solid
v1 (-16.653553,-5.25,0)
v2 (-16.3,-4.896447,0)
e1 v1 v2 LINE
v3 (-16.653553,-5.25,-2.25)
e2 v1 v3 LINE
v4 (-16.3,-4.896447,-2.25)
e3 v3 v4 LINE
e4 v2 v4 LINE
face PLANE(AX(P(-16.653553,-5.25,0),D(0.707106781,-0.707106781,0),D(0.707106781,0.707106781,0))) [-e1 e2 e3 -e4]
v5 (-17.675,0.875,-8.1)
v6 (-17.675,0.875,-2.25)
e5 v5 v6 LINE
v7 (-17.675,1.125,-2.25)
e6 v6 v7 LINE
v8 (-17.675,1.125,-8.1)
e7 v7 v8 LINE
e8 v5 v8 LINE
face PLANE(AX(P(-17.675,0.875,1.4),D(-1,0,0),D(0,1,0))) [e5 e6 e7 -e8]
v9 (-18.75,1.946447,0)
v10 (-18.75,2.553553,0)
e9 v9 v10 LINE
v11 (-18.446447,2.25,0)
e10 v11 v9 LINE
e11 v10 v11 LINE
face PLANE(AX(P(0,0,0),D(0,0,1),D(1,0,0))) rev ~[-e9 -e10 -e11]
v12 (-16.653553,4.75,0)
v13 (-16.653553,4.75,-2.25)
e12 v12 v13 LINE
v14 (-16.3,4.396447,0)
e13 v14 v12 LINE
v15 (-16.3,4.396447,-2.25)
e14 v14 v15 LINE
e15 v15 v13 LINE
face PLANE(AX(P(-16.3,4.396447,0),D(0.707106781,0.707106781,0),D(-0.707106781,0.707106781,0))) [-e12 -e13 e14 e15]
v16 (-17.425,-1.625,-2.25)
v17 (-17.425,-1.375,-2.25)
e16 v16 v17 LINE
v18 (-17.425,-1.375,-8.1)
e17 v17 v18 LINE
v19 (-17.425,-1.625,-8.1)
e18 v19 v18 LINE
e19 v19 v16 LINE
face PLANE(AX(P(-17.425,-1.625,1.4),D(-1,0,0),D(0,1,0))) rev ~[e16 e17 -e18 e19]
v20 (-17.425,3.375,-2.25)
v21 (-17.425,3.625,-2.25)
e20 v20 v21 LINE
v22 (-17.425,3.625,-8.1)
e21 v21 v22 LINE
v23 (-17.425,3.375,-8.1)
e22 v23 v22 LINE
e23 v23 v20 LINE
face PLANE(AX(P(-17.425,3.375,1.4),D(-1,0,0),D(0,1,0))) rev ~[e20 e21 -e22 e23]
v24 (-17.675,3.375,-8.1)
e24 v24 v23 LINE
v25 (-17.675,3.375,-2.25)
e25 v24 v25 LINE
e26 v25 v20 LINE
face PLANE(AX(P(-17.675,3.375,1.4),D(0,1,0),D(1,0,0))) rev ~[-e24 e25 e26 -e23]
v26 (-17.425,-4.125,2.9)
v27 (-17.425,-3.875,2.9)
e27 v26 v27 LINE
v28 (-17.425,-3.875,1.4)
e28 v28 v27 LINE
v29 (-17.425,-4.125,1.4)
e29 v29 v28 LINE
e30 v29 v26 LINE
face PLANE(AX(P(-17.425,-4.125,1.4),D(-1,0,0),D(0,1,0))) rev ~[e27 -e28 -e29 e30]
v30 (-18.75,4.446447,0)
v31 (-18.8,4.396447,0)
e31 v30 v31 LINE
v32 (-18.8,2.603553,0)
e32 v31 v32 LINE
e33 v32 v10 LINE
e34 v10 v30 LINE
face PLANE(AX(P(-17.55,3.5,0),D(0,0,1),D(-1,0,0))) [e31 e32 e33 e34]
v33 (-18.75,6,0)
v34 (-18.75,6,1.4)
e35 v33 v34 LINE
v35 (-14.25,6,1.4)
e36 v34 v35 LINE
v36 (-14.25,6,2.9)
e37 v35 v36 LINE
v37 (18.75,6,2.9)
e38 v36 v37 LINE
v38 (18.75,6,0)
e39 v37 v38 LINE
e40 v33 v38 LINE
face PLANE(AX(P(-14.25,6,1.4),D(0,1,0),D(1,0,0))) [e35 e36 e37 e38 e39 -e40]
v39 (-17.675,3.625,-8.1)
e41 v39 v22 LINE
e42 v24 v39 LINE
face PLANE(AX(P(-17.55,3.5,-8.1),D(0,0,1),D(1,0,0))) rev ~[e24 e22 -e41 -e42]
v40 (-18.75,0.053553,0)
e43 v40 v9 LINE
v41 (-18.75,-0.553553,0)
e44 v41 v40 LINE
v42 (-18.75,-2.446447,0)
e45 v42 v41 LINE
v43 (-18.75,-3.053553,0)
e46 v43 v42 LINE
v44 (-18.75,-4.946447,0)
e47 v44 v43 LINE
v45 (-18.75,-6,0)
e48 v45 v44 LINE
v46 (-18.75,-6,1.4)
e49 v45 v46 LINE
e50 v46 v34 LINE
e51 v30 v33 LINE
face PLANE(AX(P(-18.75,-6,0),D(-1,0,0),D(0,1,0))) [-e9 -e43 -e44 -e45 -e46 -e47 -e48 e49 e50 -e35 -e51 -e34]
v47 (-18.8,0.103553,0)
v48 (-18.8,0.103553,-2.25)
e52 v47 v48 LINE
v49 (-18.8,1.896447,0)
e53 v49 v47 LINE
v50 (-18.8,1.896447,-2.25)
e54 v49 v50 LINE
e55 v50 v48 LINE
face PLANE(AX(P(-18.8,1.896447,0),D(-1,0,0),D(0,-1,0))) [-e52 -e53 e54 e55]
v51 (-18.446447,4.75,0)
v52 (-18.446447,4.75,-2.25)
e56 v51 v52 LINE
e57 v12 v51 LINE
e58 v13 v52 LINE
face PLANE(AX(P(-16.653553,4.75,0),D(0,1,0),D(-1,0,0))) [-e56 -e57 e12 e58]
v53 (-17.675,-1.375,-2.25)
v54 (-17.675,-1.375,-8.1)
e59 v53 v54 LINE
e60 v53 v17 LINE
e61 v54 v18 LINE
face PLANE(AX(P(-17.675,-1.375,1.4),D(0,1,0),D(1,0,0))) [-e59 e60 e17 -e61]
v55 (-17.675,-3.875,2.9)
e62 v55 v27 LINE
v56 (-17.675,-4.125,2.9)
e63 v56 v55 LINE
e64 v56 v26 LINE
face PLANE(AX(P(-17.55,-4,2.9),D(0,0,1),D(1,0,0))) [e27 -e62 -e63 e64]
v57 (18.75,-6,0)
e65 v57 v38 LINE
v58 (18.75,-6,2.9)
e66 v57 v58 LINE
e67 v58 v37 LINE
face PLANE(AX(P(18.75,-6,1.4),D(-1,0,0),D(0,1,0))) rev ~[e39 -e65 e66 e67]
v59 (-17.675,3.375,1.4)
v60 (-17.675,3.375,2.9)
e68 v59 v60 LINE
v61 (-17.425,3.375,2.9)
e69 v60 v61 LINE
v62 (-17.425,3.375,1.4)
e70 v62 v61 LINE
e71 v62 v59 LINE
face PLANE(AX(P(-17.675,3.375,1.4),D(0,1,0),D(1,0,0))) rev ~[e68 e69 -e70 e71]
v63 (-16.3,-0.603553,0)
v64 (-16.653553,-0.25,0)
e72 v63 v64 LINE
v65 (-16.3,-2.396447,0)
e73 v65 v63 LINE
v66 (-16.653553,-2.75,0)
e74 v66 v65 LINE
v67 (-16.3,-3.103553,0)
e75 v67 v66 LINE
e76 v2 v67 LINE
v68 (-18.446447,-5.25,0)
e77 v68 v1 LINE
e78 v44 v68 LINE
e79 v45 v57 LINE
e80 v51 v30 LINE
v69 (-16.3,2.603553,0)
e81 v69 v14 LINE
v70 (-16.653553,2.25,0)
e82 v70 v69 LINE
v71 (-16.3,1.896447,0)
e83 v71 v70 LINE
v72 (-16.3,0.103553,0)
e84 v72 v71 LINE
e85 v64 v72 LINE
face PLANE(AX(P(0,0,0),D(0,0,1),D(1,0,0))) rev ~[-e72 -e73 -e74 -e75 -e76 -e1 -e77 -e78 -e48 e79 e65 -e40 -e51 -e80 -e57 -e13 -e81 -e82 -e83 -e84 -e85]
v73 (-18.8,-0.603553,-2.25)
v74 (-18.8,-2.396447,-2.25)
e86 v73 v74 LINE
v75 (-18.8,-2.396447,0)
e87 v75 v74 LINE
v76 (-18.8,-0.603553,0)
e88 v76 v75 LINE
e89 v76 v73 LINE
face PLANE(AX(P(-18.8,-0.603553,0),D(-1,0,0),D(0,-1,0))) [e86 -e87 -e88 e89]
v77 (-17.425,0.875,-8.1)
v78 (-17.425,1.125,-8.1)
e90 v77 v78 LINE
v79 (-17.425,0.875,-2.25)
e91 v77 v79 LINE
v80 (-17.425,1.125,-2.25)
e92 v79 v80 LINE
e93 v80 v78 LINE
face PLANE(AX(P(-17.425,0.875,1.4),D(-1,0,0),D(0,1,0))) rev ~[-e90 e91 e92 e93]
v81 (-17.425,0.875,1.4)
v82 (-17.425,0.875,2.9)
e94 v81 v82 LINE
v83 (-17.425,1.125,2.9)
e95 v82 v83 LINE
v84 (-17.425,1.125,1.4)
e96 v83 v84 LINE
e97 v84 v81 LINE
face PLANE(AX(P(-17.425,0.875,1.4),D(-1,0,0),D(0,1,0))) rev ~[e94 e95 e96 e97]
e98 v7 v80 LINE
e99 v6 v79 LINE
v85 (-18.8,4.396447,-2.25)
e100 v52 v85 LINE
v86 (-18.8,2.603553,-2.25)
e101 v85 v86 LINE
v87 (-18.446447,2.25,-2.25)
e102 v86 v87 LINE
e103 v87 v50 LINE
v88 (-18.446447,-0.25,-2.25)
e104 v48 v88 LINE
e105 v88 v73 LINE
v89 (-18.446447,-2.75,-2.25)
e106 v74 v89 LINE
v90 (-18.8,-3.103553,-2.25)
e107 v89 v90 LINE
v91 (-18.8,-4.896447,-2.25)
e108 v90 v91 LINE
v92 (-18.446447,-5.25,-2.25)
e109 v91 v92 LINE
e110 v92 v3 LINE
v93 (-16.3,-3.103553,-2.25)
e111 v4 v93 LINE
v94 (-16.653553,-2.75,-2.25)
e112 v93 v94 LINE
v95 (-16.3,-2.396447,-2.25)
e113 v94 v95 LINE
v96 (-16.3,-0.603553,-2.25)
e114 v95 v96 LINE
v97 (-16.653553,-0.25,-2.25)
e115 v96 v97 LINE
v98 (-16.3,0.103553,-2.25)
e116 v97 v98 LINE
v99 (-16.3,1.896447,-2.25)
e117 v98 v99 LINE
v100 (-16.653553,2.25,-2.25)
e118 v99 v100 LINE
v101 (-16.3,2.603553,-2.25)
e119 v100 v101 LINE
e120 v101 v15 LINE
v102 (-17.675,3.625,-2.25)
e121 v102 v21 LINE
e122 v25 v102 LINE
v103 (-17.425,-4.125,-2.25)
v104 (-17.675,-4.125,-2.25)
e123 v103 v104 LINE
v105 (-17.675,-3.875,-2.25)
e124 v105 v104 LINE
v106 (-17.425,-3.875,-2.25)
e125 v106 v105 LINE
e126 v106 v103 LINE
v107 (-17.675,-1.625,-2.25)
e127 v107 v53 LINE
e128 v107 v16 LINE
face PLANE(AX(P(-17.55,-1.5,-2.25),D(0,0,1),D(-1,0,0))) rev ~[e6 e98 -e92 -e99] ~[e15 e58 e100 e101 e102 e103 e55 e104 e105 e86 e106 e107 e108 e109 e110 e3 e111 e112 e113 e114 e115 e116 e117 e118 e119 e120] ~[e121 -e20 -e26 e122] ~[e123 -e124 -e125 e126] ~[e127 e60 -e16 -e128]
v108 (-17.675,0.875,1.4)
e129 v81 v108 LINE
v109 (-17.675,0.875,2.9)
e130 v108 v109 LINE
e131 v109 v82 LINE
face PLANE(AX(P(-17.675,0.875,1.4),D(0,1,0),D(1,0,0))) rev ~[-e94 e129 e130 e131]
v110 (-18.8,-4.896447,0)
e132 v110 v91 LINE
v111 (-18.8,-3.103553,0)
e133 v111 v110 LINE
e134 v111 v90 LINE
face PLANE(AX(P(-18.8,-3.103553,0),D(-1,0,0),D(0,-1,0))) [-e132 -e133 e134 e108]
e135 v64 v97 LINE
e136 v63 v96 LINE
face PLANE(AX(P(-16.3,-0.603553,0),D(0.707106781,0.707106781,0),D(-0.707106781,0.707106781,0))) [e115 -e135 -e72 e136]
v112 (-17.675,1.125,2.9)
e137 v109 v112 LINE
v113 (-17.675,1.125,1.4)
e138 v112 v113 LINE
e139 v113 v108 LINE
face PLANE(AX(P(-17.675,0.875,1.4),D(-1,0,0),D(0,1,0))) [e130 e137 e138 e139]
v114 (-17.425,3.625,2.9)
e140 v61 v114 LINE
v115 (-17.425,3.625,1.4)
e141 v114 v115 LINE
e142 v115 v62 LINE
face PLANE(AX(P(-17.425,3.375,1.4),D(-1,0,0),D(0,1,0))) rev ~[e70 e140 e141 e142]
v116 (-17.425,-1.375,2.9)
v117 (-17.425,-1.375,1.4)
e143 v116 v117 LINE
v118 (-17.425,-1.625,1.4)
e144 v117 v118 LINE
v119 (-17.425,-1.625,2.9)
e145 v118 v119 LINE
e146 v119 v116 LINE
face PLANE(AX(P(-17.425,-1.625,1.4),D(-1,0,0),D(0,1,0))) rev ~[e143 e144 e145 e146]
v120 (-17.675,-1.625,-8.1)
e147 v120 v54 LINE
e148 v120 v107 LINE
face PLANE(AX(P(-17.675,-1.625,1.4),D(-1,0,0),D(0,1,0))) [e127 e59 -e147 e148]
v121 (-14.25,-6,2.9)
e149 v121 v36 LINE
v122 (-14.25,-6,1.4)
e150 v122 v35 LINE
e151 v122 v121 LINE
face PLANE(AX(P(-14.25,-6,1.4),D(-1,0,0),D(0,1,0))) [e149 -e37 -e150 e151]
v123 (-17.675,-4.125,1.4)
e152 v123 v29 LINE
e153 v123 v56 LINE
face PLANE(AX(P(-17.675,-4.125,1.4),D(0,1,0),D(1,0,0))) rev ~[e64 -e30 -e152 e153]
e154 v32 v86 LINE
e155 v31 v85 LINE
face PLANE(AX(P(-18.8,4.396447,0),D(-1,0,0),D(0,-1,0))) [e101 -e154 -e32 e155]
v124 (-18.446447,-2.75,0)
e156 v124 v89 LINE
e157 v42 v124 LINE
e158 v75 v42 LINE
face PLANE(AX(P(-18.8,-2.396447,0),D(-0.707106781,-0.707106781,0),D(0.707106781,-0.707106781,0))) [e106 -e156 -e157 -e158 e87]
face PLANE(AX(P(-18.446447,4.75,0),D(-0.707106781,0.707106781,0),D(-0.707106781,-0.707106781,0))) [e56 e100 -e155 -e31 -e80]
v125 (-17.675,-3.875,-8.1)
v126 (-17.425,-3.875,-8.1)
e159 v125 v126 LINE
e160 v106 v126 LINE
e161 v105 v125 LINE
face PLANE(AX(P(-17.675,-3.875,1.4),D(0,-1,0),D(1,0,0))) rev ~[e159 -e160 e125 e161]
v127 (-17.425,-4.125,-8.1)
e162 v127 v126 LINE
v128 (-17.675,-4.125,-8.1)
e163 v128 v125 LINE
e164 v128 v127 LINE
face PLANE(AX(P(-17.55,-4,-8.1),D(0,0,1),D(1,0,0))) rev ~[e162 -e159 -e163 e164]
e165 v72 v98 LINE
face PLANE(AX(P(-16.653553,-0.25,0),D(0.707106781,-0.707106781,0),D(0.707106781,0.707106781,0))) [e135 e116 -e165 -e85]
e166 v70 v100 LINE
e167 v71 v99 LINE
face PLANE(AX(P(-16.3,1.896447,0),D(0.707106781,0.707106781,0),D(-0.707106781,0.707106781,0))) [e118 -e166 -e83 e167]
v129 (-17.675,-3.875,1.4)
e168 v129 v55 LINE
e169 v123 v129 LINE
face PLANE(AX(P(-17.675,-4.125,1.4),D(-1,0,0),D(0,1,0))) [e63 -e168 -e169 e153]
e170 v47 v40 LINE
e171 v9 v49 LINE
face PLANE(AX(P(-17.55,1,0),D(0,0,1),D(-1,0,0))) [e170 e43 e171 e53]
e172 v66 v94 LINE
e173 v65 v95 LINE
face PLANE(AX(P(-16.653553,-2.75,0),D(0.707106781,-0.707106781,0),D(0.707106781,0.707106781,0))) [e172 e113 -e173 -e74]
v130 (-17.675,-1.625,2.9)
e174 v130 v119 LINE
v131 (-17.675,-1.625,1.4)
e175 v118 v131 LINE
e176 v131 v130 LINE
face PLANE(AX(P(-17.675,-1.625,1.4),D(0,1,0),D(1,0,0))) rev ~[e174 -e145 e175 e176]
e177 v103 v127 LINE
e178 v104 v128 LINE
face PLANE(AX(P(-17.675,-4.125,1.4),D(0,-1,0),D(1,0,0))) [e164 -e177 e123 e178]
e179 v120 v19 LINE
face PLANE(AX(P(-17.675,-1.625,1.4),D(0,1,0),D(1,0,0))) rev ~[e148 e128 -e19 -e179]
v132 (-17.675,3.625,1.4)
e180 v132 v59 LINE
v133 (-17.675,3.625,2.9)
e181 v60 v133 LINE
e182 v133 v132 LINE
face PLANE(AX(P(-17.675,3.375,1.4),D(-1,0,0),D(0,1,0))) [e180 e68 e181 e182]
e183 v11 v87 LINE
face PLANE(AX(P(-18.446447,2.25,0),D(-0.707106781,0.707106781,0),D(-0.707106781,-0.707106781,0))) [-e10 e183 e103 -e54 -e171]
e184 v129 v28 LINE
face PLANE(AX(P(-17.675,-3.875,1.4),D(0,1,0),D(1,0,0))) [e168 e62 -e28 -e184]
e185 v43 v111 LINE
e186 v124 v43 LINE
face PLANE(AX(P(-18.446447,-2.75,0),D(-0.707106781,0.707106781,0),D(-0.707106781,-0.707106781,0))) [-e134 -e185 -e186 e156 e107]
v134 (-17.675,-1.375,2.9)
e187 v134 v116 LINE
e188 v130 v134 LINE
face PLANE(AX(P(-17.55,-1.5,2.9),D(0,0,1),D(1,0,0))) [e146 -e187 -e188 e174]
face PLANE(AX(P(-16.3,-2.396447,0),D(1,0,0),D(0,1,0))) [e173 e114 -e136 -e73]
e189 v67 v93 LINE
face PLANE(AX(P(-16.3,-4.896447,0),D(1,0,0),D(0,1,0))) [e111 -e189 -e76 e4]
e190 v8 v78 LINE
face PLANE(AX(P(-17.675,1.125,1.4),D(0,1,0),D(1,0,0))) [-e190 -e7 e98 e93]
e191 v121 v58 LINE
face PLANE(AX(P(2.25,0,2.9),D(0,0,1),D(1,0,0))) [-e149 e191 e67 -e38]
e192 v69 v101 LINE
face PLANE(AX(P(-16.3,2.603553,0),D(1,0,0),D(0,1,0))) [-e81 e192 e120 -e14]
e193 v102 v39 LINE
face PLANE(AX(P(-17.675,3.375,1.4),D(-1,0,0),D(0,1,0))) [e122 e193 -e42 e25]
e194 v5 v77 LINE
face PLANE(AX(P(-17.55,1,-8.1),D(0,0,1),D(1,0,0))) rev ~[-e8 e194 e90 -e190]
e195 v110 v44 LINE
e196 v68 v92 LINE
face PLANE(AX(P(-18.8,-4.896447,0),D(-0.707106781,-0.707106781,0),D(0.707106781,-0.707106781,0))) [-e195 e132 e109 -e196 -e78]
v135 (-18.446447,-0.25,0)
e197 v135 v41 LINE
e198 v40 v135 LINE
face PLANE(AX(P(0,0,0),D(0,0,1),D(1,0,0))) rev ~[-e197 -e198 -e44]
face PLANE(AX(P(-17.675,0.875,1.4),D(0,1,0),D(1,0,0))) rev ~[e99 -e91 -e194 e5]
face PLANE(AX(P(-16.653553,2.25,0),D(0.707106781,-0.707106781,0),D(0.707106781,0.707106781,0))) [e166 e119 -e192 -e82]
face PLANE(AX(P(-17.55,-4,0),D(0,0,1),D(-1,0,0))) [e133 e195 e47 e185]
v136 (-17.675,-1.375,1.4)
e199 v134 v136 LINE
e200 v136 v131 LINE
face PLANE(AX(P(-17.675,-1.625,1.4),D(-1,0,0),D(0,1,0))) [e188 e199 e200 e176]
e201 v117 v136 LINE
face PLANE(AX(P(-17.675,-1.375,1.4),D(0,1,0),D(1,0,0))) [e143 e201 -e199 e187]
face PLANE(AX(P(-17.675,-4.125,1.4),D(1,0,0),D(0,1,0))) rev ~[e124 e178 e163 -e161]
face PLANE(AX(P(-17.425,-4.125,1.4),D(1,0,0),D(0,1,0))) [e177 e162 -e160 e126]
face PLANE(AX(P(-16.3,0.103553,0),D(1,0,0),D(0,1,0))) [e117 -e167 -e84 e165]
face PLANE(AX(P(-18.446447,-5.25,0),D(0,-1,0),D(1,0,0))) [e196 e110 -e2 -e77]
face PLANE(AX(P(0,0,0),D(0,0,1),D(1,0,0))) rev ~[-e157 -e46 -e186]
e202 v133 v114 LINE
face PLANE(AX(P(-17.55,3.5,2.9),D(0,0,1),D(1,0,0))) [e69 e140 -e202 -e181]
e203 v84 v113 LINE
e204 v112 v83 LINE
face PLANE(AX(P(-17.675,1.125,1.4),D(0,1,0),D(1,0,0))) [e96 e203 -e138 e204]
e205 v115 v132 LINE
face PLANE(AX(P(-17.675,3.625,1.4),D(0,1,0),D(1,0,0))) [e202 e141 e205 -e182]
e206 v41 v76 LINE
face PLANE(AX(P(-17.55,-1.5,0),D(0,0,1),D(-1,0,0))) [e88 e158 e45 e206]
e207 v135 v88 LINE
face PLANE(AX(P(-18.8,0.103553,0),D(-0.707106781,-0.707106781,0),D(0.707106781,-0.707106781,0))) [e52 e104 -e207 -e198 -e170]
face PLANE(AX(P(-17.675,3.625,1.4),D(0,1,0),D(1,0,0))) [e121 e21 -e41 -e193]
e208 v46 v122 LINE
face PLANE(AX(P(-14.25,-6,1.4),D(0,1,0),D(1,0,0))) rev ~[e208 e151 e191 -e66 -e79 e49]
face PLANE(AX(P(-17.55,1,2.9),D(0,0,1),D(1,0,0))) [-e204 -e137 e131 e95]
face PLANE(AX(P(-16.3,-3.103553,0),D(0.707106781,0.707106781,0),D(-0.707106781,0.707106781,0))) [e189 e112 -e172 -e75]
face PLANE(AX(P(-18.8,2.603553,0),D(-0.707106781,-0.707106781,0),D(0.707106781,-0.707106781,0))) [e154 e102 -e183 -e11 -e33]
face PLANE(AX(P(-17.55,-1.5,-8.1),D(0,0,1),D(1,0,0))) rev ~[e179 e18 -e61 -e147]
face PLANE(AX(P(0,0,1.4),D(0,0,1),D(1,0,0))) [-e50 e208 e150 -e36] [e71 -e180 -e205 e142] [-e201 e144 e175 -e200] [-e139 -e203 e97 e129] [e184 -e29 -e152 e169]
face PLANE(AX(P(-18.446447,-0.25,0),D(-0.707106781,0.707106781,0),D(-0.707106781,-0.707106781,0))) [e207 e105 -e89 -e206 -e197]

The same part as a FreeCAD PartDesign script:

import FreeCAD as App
import Part
import Sketcher
Q = App.Units.Quantity

doc = App.newDocument("Part")
body = doc.addObject("PartDesign::Body", "Body")

# Sketch on XY plane
sketch1 = body.newObject("Sketcher::SketchObject", "Sketch")
sketch1.AttachmentSupport = (doc.getObject("XY_Plane"), [""])
sketch1.MapMode = "FlatFace"
sketch1.addGeometry([
    Part.LineSegment(App.Vector(-18.75, 6, 0), App.Vector(-18.75, -6, 0)),
    Part.LineSegment(App.Vector(-18.75, -6, 0), App.Vector(18.75, -6, 0)),
    Part.LineSegment(App.Vector(18.75, -6, 0), App.Vector(18.75, 6, 0)),
    Part.LineSegment(App.Vector(18.75, 6, 0), App.Vector(-18.75, 6, 0)),
], False)
sketch1.addConstraint([
    Sketcher.Constraint("Coincident", 0, 2, 1, 1),
    Sketcher.Constraint("Coincident", 1, 2, 2, 1),
    Sketcher.Constraint("Coincident", 2, 2, 3, 1),
    Sketcher.Constraint("Coincident", 3, 2, 0, 1),
    Sketcher.Constraint("Vertical", 0),
    Sketcher.Constraint("Horizontal", 1),
    Sketcher.Constraint("Vertical", 2),
    Sketcher.Constraint("Horizontal", 3),
    Sketcher.Constraint("Symmetric", 0, 2, 2, 2, -1, 1),
    Sketcher.Constraint("DistanceY", 0, 2, 0, 1, Q("12 mm")),
    Sketcher.Constraint("DistanceX", 1, 1, 1, 2, Q("37.5 mm")),
])
pad1 = body.newObject("PartDesign::Pad", "Pad")
pad1.Profile = sketch1
pad1.Length = 1.4

# Sketch on XY plane
sketch2 = body.newObject("Sketcher::SketchObject", "Sketch001")
sketch2.AttachmentSupport = (doc.getObject("XY_Plane"), [""])
sketch2.MapMode = "FlatFace"
sketch2.AttachmentOffset = App.Placement(App.Vector(0, 0, 1.4), App.Rotation())
sketch2.addGeometry([
    Part.LineSegment(App.Vector(-14.25, 6, 0), App.Vector(-14.25, -6, 0)),
    Part.LineSegment(App.Vector(-14.25, -6, 0), App.Vector(18.75, -6, 0)),
    Part.LineSegment(App.Vector(18.75, -6, 0), App.Vector(18.75, 6, 0)),
    Part.LineSegment(App.Vector(18.75, 6, 0), App.Vector(-14.25, 6, 0)),
], False)
sketch2.addConstraint([
    Sketcher.Constraint("Coincident", 0, 2, 1, 1),
    Sketcher.Constraint("Coincident", 1, 2, 2, 1),
    Sketcher.Constraint("Coincident", 2, 2, 3, 1),
    Sketcher.Constraint("Coincident", 3, 2, 0, 1),
    Sketcher.Constraint("Vertical", 0),
    Sketcher.Constraint("Horizontal", 1),
    Sketcher.Constraint("Vertical", 2),
    Sketcher.Constraint("Horizontal", 3),
    Sketcher.Constraint("DistanceX", 1, 1, 1, 2, Q("33 mm")),
    Sketcher.Constraint("DistanceY", 0, 2, 0, 1, Q("12 mm")),
    Sketcher.Constraint("DistanceY", 0, 2, -1, 1, Q("6 mm")),
    Sketcher.Constraint("DistanceX", 0, 2, -1, 1, Q("14.25 mm")),
])
pad2 = body.newObject("PartDesign::Pad", "Pad001")
pad2.Profile = sketch2
pad2.Length = 1.5

# Sketch on XY plane
sketch3 = body.newObject("Sketcher::SketchObject", "Sketch002")
sketch3.AttachmentSupport = (doc.getObject("XY_Plane"), [""])
sketch3.MapMode = "FlatFace"
sketch3.AttachmentOffset = App.Placement(App.Vector(0, 0, 1.4), App.Rotation())
sketch3.addGeometry([
    Part.LineSegment(App.Vector(-17.675, -3.875, 0), App.Vector(-17.675, -4.125, 0)),
    Part.LineSegment(App.Vector(-17.675, -4.125, 0), App.Vector(-17.425, -4.125, 0)),
    Part.LineSegment(App.Vector(-17.425, -4.125, 0), App.Vector(-17.425, -3.875, 0)),
    Part.LineSegment(App.Vector(-17.425, -3.875, 0), App.Vector(-17.675, -3.875, 0)),
], False)
sketch3.addConstraint([
    Sketcher.Constraint("Coincident", 0, 2, 1, 1),
    Sketcher.Constraint("Coincident", 1, 2, 2, 1),
    Sketcher.Constraint("Coincident", 2, 2, 3, 1),
    Sketcher.Constraint("Coincident", 3, 2, 0, 1),
    Sketcher.Constraint("Vertical", 0),
    Sketcher.Constraint("Horizontal", 1),
    Sketcher.Constraint("Vertical", 2),
    Sketcher.Constraint("Horizontal", 3),
    Sketcher.Constraint("Equal", 3, 0),
    Sketcher.Constraint("DistanceX", 1, 1, 1, 2, Q("0.25 mm")),
    Sketcher.Constraint("DistanceX", 0, 2, -1, 1, Q("17.675 mm")),
    Sketcher.Constraint("DistanceY", 0, 2, -1, 1, Q("4.125 mm")),
])
pad3 = body.newObject("PartDesign::Pad", "Pad002")
pad3.Profile = sketch3
pad3.Type = "TwoLengths"
pad3.Length = 1.5
pad3.Length2 = 9.5
doc.recompute()

linearpattern = body.newObject("PartDesign::LinearPattern", "LinearPattern")
linearpattern.Originals = [pad3]
linearpattern.Direction = (doc.getObject("Y_Axis"), [""])
linearpattern.Mode = "offset"
linearpattern.Offset = 2.5
linearpattern.Occurrences = 4
body.Tip = linearpattern

# Sketch on XY plane
sketch4 = body.newObject("Sketcher::SketchObject", "Sketch003")
sketch4.AttachmentSupport = (doc.getObject("XY_Plane"), [""])
sketch4.MapMode = "FlatFace"
sketch4.addGeometry([
    Part.LineSegment(App.Vector(-18.446447, -5.25, 0), App.Vector(-18.8, -4.896447, 0)),  # 0
    Part.LineSegment(App.Vector(-18.8, -4.896447, 0), App.Vector(-18.8, -3.103553, 0)),  # 1
    Part.LineSegment(App.Vector(-18.8, -3.103553, 0), App.Vector(-18.446447, -2.75, 0)),  # 2
    Part.LineSegment(App.Vector(-18.446447, -2.75, 0), App.Vector(-16.653553, -2.75, 0)),  # 3
    Part.LineSegment(App.Vector(-16.653553, -2.75, 0), App.Vector(-16.3, -3.103553, 0)),  # 4
    Part.LineSegment(App.Vector(-16.3, -3.103553, 0), App.Vector(-16.3, -4.896447, 0)),  # 5
    Part.LineSegment(App.Vector(-16.3, -4.896447, 0), App.Vector(-16.653553, -5.25, 0)),  # 6
    Part.LineSegment(App.Vector(-16.653553, -5.25, 0), App.Vector(-18.446447, -5.25, 0)),  # 7
], False)
sketch4.addConstraint([
    Sketcher.Constraint("Coincident", 0, 2, 1, 1),
    Sketcher.Constraint("Coincident", 1, 2, 2, 1),
    Sketcher.Constraint("Coincident", 2, 2, 3, 1),
    Sketcher.Constraint("Coincident", 3, 2, 4, 1),
    Sketcher.Constraint("Coincident", 4, 2, 5, 1),
    Sketcher.Constraint("Coincident", 5, 2, 6, 1),
    Sketcher.Constraint("Coincident", 6, 2, 7, 1),
    Sketcher.Constraint("Coincident", 7, 2, 0, 1),
    Sketcher.Constraint("Vertical", 1),
    Sketcher.Constraint("Horizontal", 3),
    Sketcher.Constraint("Vertical", 5),
    Sketcher.Constraint("Horizontal", 7),
    Sketcher.Constraint("Perpendicular", 0, 2),
    Sketcher.Constraint("Perpendicular", 2, 4),
    Sketcher.Constraint("Perpendicular", 4, 6),
    Sketcher.Constraint("Horizontal", 1, 2, 4, 2),
    Sketcher.Constraint("Horizontal", 0, 2, 5, 2),
    Sketcher.Constraint("Vertical", 3, 2, 6, 2),
    Sketcher.Constraint("Vertical", 2, 2, 7, 2),
    Sketcher.Constraint("Equal", 7, 1),
    Sketcher.Constraint("Distance", 0, Q("0.499999 mm")),
    Sketcher.Constraint("DistanceX", 0, 2, -1, 1, Q("18.8 mm")),
    Sketcher.Constraint("DistanceX", 4, 2, -1, 1, Q("16.3 mm")),
    Sketcher.Constraint("DistanceY", 2, 2, -1, 1, Q("2.75 mm")),
])
pad4 = body.newObject("PartDesign::Pad", "Pad003")
pad4.Profile = sketch4
pad4.Length = 2.25
pad4.Reversed = True
doc.recompute()

linearpattern2 = body.newObject("PartDesign::LinearPattern", "LinearPattern001")
linearpattern2.Originals = [pad4]
linearpattern2.Direction = (doc.getObject("Y_Axis"), [""])
linearpattern2.Mode = "offset"
linearpattern2.Offset = 2.5
linearpattern2.Occurrences = 4
body.Tip = linearpattern2

doc.recompute()
